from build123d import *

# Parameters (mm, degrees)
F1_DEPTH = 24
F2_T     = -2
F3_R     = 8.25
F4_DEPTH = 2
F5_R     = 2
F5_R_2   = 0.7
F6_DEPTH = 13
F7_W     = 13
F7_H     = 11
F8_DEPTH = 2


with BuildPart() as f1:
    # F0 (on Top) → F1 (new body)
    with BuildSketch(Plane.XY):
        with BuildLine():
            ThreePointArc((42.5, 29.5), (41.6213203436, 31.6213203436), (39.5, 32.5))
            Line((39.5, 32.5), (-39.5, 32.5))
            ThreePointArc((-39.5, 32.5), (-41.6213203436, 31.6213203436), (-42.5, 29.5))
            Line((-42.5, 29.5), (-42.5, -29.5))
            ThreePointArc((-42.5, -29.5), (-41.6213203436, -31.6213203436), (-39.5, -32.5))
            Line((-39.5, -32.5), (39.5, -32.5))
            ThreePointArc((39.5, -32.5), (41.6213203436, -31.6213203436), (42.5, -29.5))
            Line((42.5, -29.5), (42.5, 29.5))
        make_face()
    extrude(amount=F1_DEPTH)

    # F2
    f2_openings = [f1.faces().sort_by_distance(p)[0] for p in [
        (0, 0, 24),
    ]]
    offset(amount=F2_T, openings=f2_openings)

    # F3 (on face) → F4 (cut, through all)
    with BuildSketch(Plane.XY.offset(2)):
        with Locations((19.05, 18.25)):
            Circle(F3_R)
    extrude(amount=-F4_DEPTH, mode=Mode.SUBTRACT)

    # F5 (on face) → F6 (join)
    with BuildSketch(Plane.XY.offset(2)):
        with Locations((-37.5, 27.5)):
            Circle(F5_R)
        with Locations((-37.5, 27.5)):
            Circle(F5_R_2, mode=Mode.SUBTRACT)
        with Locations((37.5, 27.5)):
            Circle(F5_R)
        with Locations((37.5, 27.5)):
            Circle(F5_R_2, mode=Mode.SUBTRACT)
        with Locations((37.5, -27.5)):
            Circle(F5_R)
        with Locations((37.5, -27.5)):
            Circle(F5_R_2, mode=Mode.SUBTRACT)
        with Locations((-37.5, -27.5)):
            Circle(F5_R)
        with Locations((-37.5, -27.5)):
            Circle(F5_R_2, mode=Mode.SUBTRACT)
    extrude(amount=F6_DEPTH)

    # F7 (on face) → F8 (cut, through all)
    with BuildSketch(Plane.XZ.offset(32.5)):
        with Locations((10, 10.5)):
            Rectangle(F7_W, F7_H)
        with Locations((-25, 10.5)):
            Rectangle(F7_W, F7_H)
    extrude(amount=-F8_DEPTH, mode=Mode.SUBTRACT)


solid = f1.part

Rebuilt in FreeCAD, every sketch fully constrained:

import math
import FreeCAD as App
import Part
import Sketcher
from FreeCAD import Vector


def faces_at(feature, points):
    """Names of the faces that lie closest to the given points."""
    faces = feature.Shape.Faces
    near = lambda p: min(range(len(faces)), key=lambda i: faces[i].distToShape(Part.Vertex(*p))[0])
    return sorted({f"Face{near(p) + 1}" for p in points})


def add_polygon(sketch, points):
    """Adds a closed chain of lines whose ends are joined by coincident constraints."""
    first, n = sketch.GeometryCount, len(points)
    for a, b in zip(points, points[1:] + points[:1]):
        sketch.addGeometry(Part.LineSegment(App.Vector(*a, 0), App.Vector(*b, 0)), False)
    for i in range(n):
        sketch.addConstraint(Sketcher.Constraint("Coincident", first + i, 2, first + (i + 1) % n, 1))

doc = App.newDocument("Part")
params = doc.addObject("Spreadsheet::Sheet", "Params")
for row, (alias, value) in enumerate([
    ("sketch1_radius", "3 mm"),
    ("sketch1_width", "79 mm"),
    ("sketch1_height", "59 mm"),
    ("pad1_length", "24 mm"),
    ("thickness_wall", "2 mm"),
    ("sketch2_diameter", "16.5 mm"),
    ("sketch3_diameter", "4 mm"),
    ("sketch3_diameter2", "1.4 mm"),
    ("pad2_length", "13 mm"),
    ("sketch4_width", "13 mm"),
    ("sketch4_height", "11 mm"),
    ("pocket2_length", "2 mm"),
], start=1):
    params.set(f"A{row}", alias)
    params.set(f"B{row}", "=" + value)
    params.setAlias(f"B{row}", alias)

body = doc.addObject("PartDesign::Body", "Body")

sketch1 = body.newObject("Sketcher::SketchObject", "Sketch")
sketch1.AttachmentSupport = (doc.getObject("XY_Plane"), [""])
sketch1.MapMode = "FlatFace"
sketch1.addGeometry([
    Part.ArcOfCircle(Part.Circle(Vector(39.5, 29.5, 0), Vector(0, 0, 1), 3), math.radians(0), math.radians(90)),
    Part.LineSegment(Vector(39.5, 32.5, 0), Vector(-39.5, 32.5, 0)),
    Part.ArcOfCircle(Part.Circle(Vector(-39.5, 29.5, 0), Vector(0, 0, 1), 3), math.radians(90), math.radians(180)),
    Part.LineSegment(Vector(-42.5, 29.5, 0), Vector(-42.5, -29.5, 0)),
    Part.ArcOfCircle(Part.Circle(Vector(-39.5, -29.5, 0), Vector(0, 0, 1), 3), math.radians(180), math.radians(270)),
    Part.LineSegment(Vector(-39.5, -32.5, 0), Vector(39.5, -32.5, 0)),
    Part.ArcOfCircle(Part.Circle(Vector(39.5, -29.5, 0), Vector(0, 0, 1), 3), math.radians(-90), math.radians(0)),
    Part.LineSegment(Vector(42.5, -29.5, 0), Vector(42.5, 29.5, 0)),
], False)
sketch1.addConstraint([
    Sketcher.Constraint("Tangent", 0, 2, 1, 1),
    Sketcher.Constraint("Tangent", 1, 2, 2, 1),
    Sketcher.Constraint("Tangent", 2, 2, 3, 1),
    Sketcher.Constraint("Tangent", 3, 2, 4, 1),
    Sketcher.Constraint("Tangent", 4, 2, 5, 1),
    Sketcher.Constraint("Tangent", 5, 2, 6, 1),
    Sketcher.Constraint("Tangent", 6, 2, 7, 1),
    Sketcher.Constraint("Tangent", 7, 2, 0, 1),
    Sketcher.Constraint("Horizontal", 1),
    Sketcher.Constraint("Vertical", 3),
    Sketcher.Constraint("Horizontal", 5),
    Sketcher.Constraint("Vertical", 7),
    Sketcher.Constraint("Equal", 0, 2),
    Sketcher.Constraint("Equal", 2, 4),
    Sketcher.Constraint("Equal", 4, 6),
    Sketcher.Constraint("Symmetric", 0, 3, 4, 3, -1, 1),
    Sketcher.Constraint("Radius", 0, 3.0),
    Sketcher.Constraint("DistanceX", 1, 2, 1, 1, 79.0),
    Sketcher.Constraint("DistanceY", 3, 2, 3, 1, 59.0),
])
sketch1.setExpression("Constraints[16]", "Params.sketch1_radius")
sketch1.setExpression("Constraints[17]", "Params.sketch1_width")
sketch1.setExpression("Constraints[18]", "Params.sketch1_height")
pad1 = body.newObject("PartDesign::Pad", "Pad")
pad1.Profile = sketch1
pad1.setExpression("Length", "Params.pad1_length")
doc.recompute()

thickness = body.newObject("PartDesign::Thickness", "Thickness")
thickness.Base = (pad1, faces_at(pad1, [(0, 0, 24)]))
thickness.setExpression("Value", "Params.thickness_wall")
thickness.Reversed = True
thickness.Join = "Arc"

sketch2 = body.newObject("Sketcher::SketchObject", "Sketch001")
sketch2.AttachmentSupport = (doc.getObject("XY_Plane"), [""])
sketch2.MapMode = "FlatFace"
sketch2.AttachmentOffset = App.Placement(Vector(0, 0, 2), App.Rotation())
sketch2.addGeometry(Part.Circle(Vector(19.05, 18.25, 0), Vector(0, 0, 1), 8.25), False)
sketch2.addConstraint([
    Sketcher.Constraint("Diameter", 0, 16.5),
    Sketcher.Constraint("DistanceX", -1, 1, 0, 3, 19.05),
    Sketcher.Constraint("DistanceY", -1, 1, 0, 3, 18.25),
])
sketch2.setExpression("Constraints[0]", "Params.sketch2_diameter")
pocket1 = body.newObject("PartDesign::Pocket", "Pocket")
pocket1.Profile = sketch2
pocket1.Type = "ThroughAll"

sketch3 = body.newObject("Sketcher::SketchObject", "Sketch002")
sketch3.AttachmentSupport = (doc.getObject("XY_Plane"), [""])
sketch3.MapMode = "FlatFace"
sketch3.AttachmentOffset = App.Placement(Vector(0, 0, 2), App.Rotation())
sketch3.addGeometry([
    Part.Circle(Vector(-37.5, 27.5, 0), Vector(0, 0, 1), 2),
    Part.Circle(Vector(-37.5, 27.5, 0), Vector(0, 0, 1), 0.7),
    Part.Circle(Vector(37.5, 27.5, 0), Vector(0, 0, 1), 2),
    Part.Circle(Vector(37.5, 27.5, 0), Vector(0, 0, 1), 0.7),
    Part.Circle(Vector(37.5, -27.5, 0), Vector(0, 0, 1), 2),
    Part.Circle(Vector(37.5, -27.5, 0), Vector(0, 0, 1), 0.7),
    Part.Circle(Vector(-37.5, -27.5, 0), Vector(0, 0, 1), 2),
    Part.Circle(Vector(-37.5, -27.5, 0), Vector(0, 0, 1), 0.7),
], False)
sketch3.addConstraint([
    Sketcher.Constraint("Coincident", 1, 3, 0, 3),
    Sketcher.Constraint("Coincident", 3, 3, 2, 3),
    Sketcher.Constraint("Coincident", 5, 3, 4, 3),
    Sketcher.Constraint("Coincident", 7, 3, 6, 3),
    Sketcher.Constraint("Equal", 0, 2),
    Sketcher.Constraint("Equal", 1, 3),
    Sketcher.Constraint("Equal", 2, 4),
    Sketcher.Constraint("Equal", 3, 5),
    Sketcher.Constraint("Equal", 4, 6),
    Sketcher.Constraint("Equal", 5, 7),
    Sketcher.Constraint("Symmetric", 0, 3, 4, 3, -1, 1),
    Sketcher.Constraint("Symmetric", 2, 3, 6, 3, -1, 1),
    Sketcher.Constraint("Symmetric", 0, 3, 2, 3, -2),
    Sketcher.Constraint("Diameter", 0, 4.0),
    Sketcher.Constraint("Diameter", 1, 1.4),
    Sketcher.Constraint("DistanceX", 0, 3, 2, 3, 75.0),
    Sketcher.Constraint("DistanceY", 4, 3, 2, 3, 55.0),
])
sketch3.setExpression("Constraints[13]", "Params.sketch3_diameter")
sketch3.setExpression("Constraints[14]", "Params.sketch3_diameter2")
pad2 = body.newObject("PartDesign::Pad", "Pad001")
pad2.Profile = sketch3
pad2.setExpression("Length", "Params.pad2_length")

sketch4 = body.newObject("Sketcher::SketchObject", "Sketch003")
sketch4.AttachmentSupport = (doc.getObject("XZ_Plane"), [""])
sketch4.MapMode = "FlatFace"
sketch4.AttachmentOffset = App.Placement(Vector(0, 0, 32.5), App.Rotation())
add_polygon(sketch4, [(3.5, 16), (3.5, 5), (16.5, 5), (16.5, 16)])
add_polygon(sketch4, [(-31.5, 16), (-31.5, 5), (-18.5, 5), (-18.5, 16)])
sketch4.addConstraint([
    Sketcher.Constraint("Vertical", 0),
    Sketcher.Constraint("Horizontal", 1),
    Sketcher.Constraint("Vertical", 2),
    Sketcher.Constraint("Horizontal", 3),
    Sketcher.Constraint("Vertical", 4),
    Sketcher.Constraint("Horizontal", 5),
    Sketcher.Constraint("Vertical", 6),
    Sketcher.Constraint("Horizontal", 7),
    Sketcher.Constraint("Horizontal", 1, 2, 4, 2),
    Sketcher.Constraint("Horizontal", 3, 2, 6, 2),
    Sketcher.Constraint("Equal", 3, 5),
    Sketcher.Constraint("DistanceX", 1, 1, 1, 2, 13.0),
    Sketcher.Constraint("DistanceY", 0, 2, 0, 1, 11.0),
    Sketcher.Constraint("DistanceY", -1, 1, 0, 2, 5.0),
    Sketcher.Constraint("DistanceX", 4, 2, 0, 2, 35.0),
    Sketcher.Constraint("DistanceX", -1, 1, 0, 2, 3.5),
])
sketch4.setExpression("Constraints[19]", "Params.sketch4_width")
sketch4.setExpression("Constraints[20]", "Params.sketch4_height")
pocket2 = body.newObject("PartDesign::Pocket", "Pocket001")
pocket2.Profile = sketch4
pocket2.setExpression("Length", "Params.pocket2_length")

doc.recompute()
